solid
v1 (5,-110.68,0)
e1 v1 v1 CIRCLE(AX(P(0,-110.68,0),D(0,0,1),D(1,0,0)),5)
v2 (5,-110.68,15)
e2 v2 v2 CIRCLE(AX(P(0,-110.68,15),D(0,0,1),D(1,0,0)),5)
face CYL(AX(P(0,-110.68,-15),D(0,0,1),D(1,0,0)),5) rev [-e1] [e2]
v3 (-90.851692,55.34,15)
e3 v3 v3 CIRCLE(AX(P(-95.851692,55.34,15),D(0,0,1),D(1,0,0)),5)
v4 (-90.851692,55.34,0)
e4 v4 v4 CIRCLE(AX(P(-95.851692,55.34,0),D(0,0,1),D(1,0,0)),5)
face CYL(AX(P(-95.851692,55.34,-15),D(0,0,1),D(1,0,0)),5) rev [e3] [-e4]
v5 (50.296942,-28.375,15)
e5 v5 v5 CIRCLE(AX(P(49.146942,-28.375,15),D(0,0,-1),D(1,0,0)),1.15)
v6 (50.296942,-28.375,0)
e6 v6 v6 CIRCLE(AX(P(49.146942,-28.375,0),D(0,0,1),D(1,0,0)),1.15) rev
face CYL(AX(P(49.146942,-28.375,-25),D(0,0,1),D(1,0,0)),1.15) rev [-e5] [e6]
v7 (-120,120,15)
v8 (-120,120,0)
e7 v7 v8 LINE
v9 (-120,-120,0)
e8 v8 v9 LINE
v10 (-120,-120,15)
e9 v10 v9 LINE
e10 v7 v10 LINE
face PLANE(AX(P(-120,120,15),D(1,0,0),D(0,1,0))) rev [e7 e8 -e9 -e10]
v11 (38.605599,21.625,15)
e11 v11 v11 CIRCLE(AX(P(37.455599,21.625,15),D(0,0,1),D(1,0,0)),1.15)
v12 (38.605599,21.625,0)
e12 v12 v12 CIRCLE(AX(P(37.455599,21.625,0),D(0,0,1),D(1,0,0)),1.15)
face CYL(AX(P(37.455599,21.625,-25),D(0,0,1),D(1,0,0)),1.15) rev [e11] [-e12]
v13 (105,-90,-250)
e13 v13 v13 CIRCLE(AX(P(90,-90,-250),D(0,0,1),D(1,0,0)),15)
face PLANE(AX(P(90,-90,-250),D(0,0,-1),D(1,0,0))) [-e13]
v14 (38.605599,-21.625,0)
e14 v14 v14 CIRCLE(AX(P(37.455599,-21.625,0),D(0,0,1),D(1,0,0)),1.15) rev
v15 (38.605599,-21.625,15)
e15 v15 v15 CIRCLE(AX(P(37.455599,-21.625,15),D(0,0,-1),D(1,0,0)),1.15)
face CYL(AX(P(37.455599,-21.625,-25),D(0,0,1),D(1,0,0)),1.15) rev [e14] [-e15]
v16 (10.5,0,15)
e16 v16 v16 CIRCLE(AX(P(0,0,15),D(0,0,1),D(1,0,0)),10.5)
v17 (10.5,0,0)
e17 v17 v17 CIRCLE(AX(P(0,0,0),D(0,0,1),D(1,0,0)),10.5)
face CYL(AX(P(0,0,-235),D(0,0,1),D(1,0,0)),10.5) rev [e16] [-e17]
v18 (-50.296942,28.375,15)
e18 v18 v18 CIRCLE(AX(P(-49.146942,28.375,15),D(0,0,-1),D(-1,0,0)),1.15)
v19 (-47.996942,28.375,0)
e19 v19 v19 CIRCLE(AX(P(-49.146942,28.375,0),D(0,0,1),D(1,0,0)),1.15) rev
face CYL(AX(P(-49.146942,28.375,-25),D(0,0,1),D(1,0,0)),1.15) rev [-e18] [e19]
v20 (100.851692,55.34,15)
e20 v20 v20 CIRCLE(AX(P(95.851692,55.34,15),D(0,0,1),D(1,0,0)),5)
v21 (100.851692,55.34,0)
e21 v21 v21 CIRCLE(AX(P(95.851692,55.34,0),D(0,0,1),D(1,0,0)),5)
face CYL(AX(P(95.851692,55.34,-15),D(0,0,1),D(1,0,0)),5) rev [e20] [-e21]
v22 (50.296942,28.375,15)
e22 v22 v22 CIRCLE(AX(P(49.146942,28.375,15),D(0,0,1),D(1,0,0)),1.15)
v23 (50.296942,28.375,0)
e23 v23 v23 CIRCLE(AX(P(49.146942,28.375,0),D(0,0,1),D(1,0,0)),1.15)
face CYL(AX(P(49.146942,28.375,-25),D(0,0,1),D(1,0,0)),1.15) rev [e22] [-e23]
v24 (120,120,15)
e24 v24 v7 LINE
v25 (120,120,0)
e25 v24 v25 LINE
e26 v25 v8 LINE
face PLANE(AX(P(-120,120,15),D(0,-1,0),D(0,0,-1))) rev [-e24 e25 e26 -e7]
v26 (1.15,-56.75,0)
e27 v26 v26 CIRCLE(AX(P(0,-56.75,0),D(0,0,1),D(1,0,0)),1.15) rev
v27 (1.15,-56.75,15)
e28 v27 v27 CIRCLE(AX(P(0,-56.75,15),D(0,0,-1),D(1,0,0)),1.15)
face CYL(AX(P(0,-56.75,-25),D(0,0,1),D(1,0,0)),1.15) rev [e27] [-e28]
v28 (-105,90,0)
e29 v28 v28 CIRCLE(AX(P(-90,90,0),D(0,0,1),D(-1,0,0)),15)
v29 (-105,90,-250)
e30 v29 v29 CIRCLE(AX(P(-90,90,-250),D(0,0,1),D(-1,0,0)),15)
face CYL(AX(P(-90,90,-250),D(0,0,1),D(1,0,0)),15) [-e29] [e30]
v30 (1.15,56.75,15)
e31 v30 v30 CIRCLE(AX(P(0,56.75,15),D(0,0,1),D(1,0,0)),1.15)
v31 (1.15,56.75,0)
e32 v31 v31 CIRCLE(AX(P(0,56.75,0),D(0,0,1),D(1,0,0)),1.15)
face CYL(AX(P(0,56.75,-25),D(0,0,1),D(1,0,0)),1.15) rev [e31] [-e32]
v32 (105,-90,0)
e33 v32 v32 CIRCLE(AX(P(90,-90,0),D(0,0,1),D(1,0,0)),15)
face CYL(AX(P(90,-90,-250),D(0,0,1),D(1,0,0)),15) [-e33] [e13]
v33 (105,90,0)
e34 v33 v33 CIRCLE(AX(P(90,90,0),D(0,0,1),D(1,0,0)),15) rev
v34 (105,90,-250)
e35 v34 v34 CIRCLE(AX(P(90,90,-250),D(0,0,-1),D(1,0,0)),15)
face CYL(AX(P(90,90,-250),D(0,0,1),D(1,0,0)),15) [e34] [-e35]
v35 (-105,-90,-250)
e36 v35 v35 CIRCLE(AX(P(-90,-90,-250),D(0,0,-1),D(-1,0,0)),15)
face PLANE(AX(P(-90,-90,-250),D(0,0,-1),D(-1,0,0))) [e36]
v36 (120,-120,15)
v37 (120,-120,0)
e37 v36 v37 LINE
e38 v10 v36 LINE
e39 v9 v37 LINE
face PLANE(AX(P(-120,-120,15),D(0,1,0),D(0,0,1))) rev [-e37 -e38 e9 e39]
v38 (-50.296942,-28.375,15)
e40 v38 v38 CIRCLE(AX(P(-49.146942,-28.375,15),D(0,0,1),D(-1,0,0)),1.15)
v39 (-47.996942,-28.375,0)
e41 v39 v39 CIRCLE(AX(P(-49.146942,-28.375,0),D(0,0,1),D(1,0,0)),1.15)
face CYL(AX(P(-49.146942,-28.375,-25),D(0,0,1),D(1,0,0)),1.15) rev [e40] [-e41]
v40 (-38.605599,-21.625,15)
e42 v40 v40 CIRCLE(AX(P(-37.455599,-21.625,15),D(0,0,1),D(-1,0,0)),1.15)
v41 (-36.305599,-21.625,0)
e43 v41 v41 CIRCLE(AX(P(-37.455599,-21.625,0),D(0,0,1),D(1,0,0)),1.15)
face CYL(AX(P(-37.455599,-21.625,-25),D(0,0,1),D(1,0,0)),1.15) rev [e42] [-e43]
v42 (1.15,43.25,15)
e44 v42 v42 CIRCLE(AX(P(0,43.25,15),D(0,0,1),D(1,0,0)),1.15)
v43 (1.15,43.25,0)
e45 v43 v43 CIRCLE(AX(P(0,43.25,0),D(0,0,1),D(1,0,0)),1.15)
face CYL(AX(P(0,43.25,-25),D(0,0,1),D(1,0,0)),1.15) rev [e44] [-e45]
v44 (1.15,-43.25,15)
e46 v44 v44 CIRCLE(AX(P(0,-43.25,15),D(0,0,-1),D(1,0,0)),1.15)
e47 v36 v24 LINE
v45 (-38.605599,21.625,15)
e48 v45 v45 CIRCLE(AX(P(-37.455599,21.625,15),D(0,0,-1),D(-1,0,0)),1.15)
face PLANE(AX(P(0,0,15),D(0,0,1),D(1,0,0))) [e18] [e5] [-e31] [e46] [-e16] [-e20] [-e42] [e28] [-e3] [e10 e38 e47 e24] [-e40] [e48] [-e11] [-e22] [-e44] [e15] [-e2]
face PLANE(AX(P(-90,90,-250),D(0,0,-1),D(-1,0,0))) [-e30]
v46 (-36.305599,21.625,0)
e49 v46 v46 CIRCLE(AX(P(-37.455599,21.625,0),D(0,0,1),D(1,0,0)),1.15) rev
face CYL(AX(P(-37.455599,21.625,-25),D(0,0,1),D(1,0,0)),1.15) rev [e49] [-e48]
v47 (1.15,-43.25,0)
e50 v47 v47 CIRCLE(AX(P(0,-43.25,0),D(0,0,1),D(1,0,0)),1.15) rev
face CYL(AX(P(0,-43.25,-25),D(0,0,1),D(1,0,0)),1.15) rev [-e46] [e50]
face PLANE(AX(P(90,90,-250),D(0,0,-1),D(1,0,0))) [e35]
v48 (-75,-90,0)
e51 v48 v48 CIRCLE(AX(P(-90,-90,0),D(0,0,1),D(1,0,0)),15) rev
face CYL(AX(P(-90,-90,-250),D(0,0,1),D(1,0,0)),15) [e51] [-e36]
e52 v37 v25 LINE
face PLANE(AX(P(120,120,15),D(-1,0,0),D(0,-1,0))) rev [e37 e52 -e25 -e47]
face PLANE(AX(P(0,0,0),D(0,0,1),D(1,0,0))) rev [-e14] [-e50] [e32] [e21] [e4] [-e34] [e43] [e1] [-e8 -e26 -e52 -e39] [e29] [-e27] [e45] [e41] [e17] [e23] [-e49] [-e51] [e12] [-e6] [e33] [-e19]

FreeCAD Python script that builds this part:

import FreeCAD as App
import Part
import Sketcher

V = App.Vector


def add_polygon(sketch, points):
    """Adds a closed chain of lines whose ends are joined by coincident constraints."""
    first, n = sketch.GeometryCount, len(points)
    for a, b in zip(points, points[1:] + points[:1]):
        sketch.addGeometry(Part.LineSegment(App.Vector(*a, 0), App.Vector(*b, 0)), False)
    for i in range(n):
        sketch.addConstraint(Sketcher.Constraint("Coincident", first + i, 2, first + (i + 1) % n, 1))

doc = App.newDocument("Part")
body = doc.addObject("PartDesign::Body", "Body")

# Sketch on XY plane
sketch1 = doc.addObject("Sketcher::SketchObject", "Sketch")
body.addObject(sketch1)
sketch1.AttachmentSupport = (doc.XY_Plane, [""])
sketch1.MapMode = "FlatFace"
add_polygon(sketch1, [(-120, 120), (-120, -120), (120, -120), (120, 120)])  # lines 0-3
sketch1.addConstraint([
    Sketcher.Constraint("Vertical", 0),
    Sketcher.Constraint("Horizontal", 1),
    Sketcher.Constraint("Vertical", 2),
    Sketcher.Constraint("Horizontal", 3),
    Sketcher.Constraint("Symmetric", 0, 2, 2, 2, -1, 1),
    Sketcher.Constraint("Equal", 3, 0),
    Sketcher.Constraint("DistanceX", 1, 1, 1, 2, 240.0),
])
pad1 = doc.addObject("PartDesign::Pad", "Pad")
body.addObject(pad1)
pad1.Profile = sketch1
pad1.Length = 15

# Sketch on XY plane
sketch2 = doc.addObject("Sketcher::SketchObject", "Sketch001")
body.addObject(sketch2)
sketch2.AttachmentSupport = (doc.XY_Plane, [""])
sketch2.MapMode = "FlatFace"
sketch2.addGeometry(Part.Circle(V(-90, -90, 0), V(0, 0, 1), 15), False)
sketch2.addConstraint([
    Sketcher.Constraint("Diameter", 0, 30.0),
    Sketcher.Constraint("DistanceX", 0, 3, -1, 1, 90.0),
    Sketcher.Constraint("DistanceY", 0, 3, -1, 1, 90.0),
])
pad2 = doc.addObject("PartDesign::Pad", "Pad001")
body.addObject(pad2)
pad2.Profile = sketch2
pad2.Length = 250
pad2.Reversed = True
doc.recompute()

mirrored = doc.addObject("PartDesign::Mirrored", "Mirrored")
body.addObject(mirrored)
mirrored.Originals = [pad2]
mirrored.MirrorPlane = (doc.XZ_Plane, [""])
body.Tip = mirrored
doc.recompute()

mirrored2 = doc.addObject("PartDesign::Mirrored", "Mirrored001")
body.addObject(mirrored2)
mirrored2.Originals = [pad2]
mirrored2.MirrorPlane = (doc.YZ_Plane, [""])
body.Tip = mirrored2

# Sketch on XY plane
sketch3 = doc.addObject("Sketcher::SketchObject", "Sketch002")
body.addObject(sketch3)
sketch3.AttachmentSupport = (doc.XY_Plane, [""])
sketch3.MapMode = "FlatFace"
sketch3.addGeometry(Part.Circle(V(90, 90, 0), V(0, 0, 1), 15), False)
sketch3.addConstraint([
    Sketcher.Constraint("Diameter", 0, 30.0),
    Sketcher.Constraint("DistanceX", -1, 1, 0, 3, 90.0),
    Sketcher.Constraint("DistanceY", -1, 1, 0, 3, 90.0),
])
pad3 = doc.addObject("PartDesign::Pad", "Pad002")
body.addObject(pad3)
pad3.Profile = sketch3
pad3.Length = 250
pad3.Reversed = True

# Sketch on XY plane
sketch4 = doc.addObject("Sketcher::SketchObject", "Sketch003")
body.addObject(sketch4)
sketch4.AttachmentSupport = (doc.XY_Plane, [""])
sketch4.MapMode = "FlatFace"
sketch4.AttachmentOffset = App.Placement(V(0, 0, 15), App.Rotation())
sketch4.addGeometry(Part.Circle(V(0, 0, 0), V(0, 0, 1), 10.5), False)
sketch4.addConstraint([
    Sketcher.Constraint("Coincident", 0, 3, -1, 1),
    Sketcher.Constraint("Diameter", 0, 21.0),
])
pocket1 = doc.addObject("PartDesign::Pocket", "Pocket")
body.addObject(pocket1)
pocket1.Profile = sketch4
pocket1.Length = 250

# Sketch on XY plane
sketch5 = doc.addObject("Sketcher::SketchObject", "Sketch004")
body.addObject(sketch5)
sketch5.AttachmentSupport = (doc.XY_Plane, [""])
sketch5.MapMode = "FlatFace"
sketch5.AttachmentOffset = App.Placement(V(0, 0, 15), App.Rotation())
sketch5.addGeometry([
    Part.Circle(V(37.455599, 21.625, 0), V(0, 0, 1), 1.15),
    Part.Circle(V(49.146942, 28.375, 0), V(0, 0, 1), 1.15),
    Part.Circle(V(0, 43.25, 0), V(0, 0, 1), 1.15),
    Part.Circle(V(0, 56.75, 0), V(0, 0, 1), 1.15),
], False)
sketch5.addConstraint([
    Sketcher.Constraint("Equal", 0, 1),
    Sketcher.Constraint("Equal", 1, 2),
    Sketcher.Constraint("Equal", 2, 3),
    Sketcher.Constraint("PointOnObject", 2, 3, -2),
    Sketcher.Constraint("PointOnObject", 3, 3, -2),
    Sketcher.Constraint("Diameter", 0, 2.3),
    Sketcher.Constraint("DistanceY", 2, 3, 3, 3, 13.5),
    Sketcher.Constraint("DistanceY", -1, 1, 2, 3, 43.25),
    Sketcher.Constraint("DistanceY", 0, 3, 1, 3, 6.75),
    Sketcher.Constraint("DistanceY", -1, 1, 0, 3, 21.625),
    Sketcher.Constraint("DistanceX", -1, 1, 0, 3, 37.455599),
    Sketcher.Constraint("DistanceX", -1, 1, 1, 3, 49.146942),
])
pocket2 = doc.addObject("PartDesign::Pocket", "Pocket001")
body.addObject(pocket2)
pocket2.Profile = sketch5
pocket2.Length = 40
doc.recompute()

mirrored3 = doc.addObject("PartDesign::Mirrored", "Mirrored002")
body.addObject(mirrored3)
mirrored3.Originals = [pocket2]
mirrored3.MirrorPlane = (doc.XZ_Plane, [""])
body.Tip = mirrored3
doc.recompute()

mirrored4 = doc.addObject("PartDesign::Mirrored", "Mirrored003")
body.addObject(mirrored4)
mirrored4.Originals = [pocket2]
mirrored4.MirrorPlane = (doc.YZ_Plane, [""])
body.Tip = mirrored4

# Sketch on XY plane
sketch6 = doc.addObject("Sketcher::SketchObject", "Sketch005")
body.addObject(sketch6)
sketch6.AttachmentSupport = (doc.XY_Plane, [""])
sketch6.MapMode = "FlatFace"
sketch6.AttachmentOffset = App.Placement(V(0, 0, 15), App.Rotation())
sketch6.addGeometry([
    Part.Circle(V(-37.455599, -21.625, 0), V(0, 0, 1), 1.15),
    Part.Circle(V(-49.146942, -28.375, 0), V(0, 0, 1), 1.15),
    Part.Circle(V(0, -43.25, 0), V(0, 0, 1), 1.15),
    Part.Circle(V(0, -56.75, 0), V(0, 0, 1), 1.15),
], False)
sketch6.addConstraint([
    Sketcher.Constraint("Equal", 0, 1),
    Sketcher.Constraint("Equal", 1, 2),
    Sketcher.Constraint("Equal", 2, 3),
    Sketcher.Constraint("PointOnObject", 2, 3, -2),
    Sketcher.Constraint("PointOnObject", 3, 3, -2),
    Sketcher.Constraint("Diameter", 0, 2.3),
    Sketcher.Constraint("DistanceY", 3, 3, 2, 3, 13.5),
    Sketcher.Constraint("DistanceY", 2, 3, -1, 1, 43.25),
    Sketcher.Constraint("DistanceY", 1, 3, 0, 3, 6.75),
    Sketcher.Constraint("DistanceY", 0, 3, -1, 1, 21.625),
    Sketcher.Constraint("DistanceX", 0, 3, -1, 1, 37.455599),
    Sketcher.Constraint("DistanceX", 1, 3, -1, 1, 49.146942),
])
pocket3 = doc.addObject("PartDesign::Pocket", "Pocket002")
body.addObject(pocket3)
pocket3.Profile = sketch6
pocket3.Length = 40

# Sketch on XY plane
sketch7 = doc.addObject("Sketcher::SketchObject", "Sketch006")
body.addObject(sketch7)
sketch7.AttachmentSupport = (doc.XY_Plane, [""])
sketch7.MapMode = "FlatFace"
sketch7.AttachmentOffset = App.Placement(V(0, 0, 15), App.Rotation())
sketch7.addGeometry([
    Part.Circle(V(0, -110.68, 0), V(0, 0, 1), 5),
    Part.Circle(V(-95.851692, 55.34, 0), V(0, 0, 1), 5),
    Part.Circle(V(95.851692, 55.34, 0), V(0, 0, 1), 5),
], False)
sketch7.addConstraint([
    Sketcher.Constraint("Equal", 0, 1),
    Sketcher.Constraint("Equal", 1, 2),
    Sketcher.Constraint("Symmetric", 1, 3, 2, 3, -2),
    Sketcher.Constraint("PointOnObject", 0, 3, -2),
    Sketcher.Constraint("Diameter", 0, 10.0),
    Sketcher.Constraint("DistanceY", 0, 3, -1, 1, 110.68),
    Sketcher.Constraint("DistanceY", -1, 1, 1, 3, 55.34),
    Sketcher.Constraint("DistanceX", 1, 3, -1, 1, 95.851692),
])
pocket4 = doc.addObject("PartDesign::Pocket", "Pocket003")
body.addObject(pocket4)
pocket4.Profile = sketch7
pocket4.Length = 30

doc.recompute()
